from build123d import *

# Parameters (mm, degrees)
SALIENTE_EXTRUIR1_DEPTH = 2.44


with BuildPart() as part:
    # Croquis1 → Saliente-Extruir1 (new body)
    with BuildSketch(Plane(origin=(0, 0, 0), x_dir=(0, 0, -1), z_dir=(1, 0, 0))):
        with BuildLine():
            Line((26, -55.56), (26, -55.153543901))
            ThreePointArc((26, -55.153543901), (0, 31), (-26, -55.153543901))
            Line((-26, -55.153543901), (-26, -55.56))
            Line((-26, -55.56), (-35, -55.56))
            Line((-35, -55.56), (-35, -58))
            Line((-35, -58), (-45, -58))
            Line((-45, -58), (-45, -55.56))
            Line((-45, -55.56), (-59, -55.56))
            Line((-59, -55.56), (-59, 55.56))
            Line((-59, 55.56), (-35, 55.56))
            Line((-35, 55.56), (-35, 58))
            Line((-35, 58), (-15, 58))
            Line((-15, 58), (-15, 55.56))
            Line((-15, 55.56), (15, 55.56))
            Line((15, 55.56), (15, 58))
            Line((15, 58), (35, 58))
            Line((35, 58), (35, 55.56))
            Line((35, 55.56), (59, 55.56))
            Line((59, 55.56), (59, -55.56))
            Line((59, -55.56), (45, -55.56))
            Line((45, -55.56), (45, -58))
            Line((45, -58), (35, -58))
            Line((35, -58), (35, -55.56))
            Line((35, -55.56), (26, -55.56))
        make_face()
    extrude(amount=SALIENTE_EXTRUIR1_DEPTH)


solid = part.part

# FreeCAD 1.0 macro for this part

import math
import FreeCAD as App
import Part
import Sketcher
from FreeCAD import Vector

doc = App.newDocument("Part")
body = doc.addObject("PartDesign::Body", "Body")

# Sketch on YZ plane
sketch1 = doc.addObject("Sketcher::SketchObject", "Sketch")
body.addObject(sketch1)
sketch1.AttachmentSupport = (doc.YZ_Plane, [""])
sketch1.MapMode = "FlatFace"
sketch1.addGeometry([
    Part.LineSegment(Vector(-55.153544, -26, 0), Vector(-55.56, -26, 0)),  # 0
    Part.LineSegment(Vector(-55.56, -26, 0), Vector(-55.56, -35, 0)),  # 1
    Part.LineSegment(Vector(-55.56, -35, 0), Vector(-58, -35, 0)),  # 2
    Part.LineSegment(Vector(-58, -35, 0), Vector(-58, -45, 0)),  # 3
    Part.LineSegment(Vector(-58, -45, 0), Vector(-55.56, -45, 0)),  # 4
    Part.LineSegment(Vector(-55.56, -45, 0), Vector(-55.56, -59, 0)),  # 5
    Part.LineSegment(Vector(-55.56, -59, 0), Vector(55.56, -59, 0)),  # 6
    Part.LineSegment(Vector(55.56, -59, 0), Vector(55.56, -35, 0)),  # 7
    Part.LineSegment(Vector(55.56, -35, 0), Vector(58, -35, 0)),  # 8
    Part.LineSegment(Vector(58, -35, 0), Vector(58, -15, 0)),  # 9
    Part.LineSegment(Vector(58, -15, 0), Vector(55.56, -15, 0)),  # 10
    Part.LineSegment(Vector(55.56, -15, 0), Vector(55.56, 15, 0)),  # 11
    Part.LineSegment(Vector(55.56, 15, 0), Vector(58, 15, 0)),  # 12
    Part.LineSegment(Vector(58, 15, 0), Vector(58, 35, 0)),  # 13
    Part.LineSegment(Vector(58, 35, 0), Vector(55.56, 35, 0)),  # 14
    Part.LineSegment(Vector(55.56, 35, 0), Vector(55.56, 59, 0)),  # 15
    Part.LineSegment(Vector(55.56, 59, 0), Vector(-55.56, 59, 0)),  # 16
    Part.LineSegment(Vector(-55.56, 59, 0), Vector(-55.56, 45, 0)),  # 17
    Part.LineSegment(Vector(-55.56, 45, 0), Vector(-58, 45, 0)),  # 18
    Part.LineSegment(Vector(-58, 45, 0), Vector(-58, 35, 0)),  # 19
    Part.LineSegment(Vector(-58, 35, 0), Vector(-55.56, 35, 0)),  # 20
    Part.LineSegment(Vector(-55.56, 35, 0), Vector(-55.56, 26, 0)),  # 21
    Part.LineSegment(Vector(-55.56, 26, 0), Vector(-55.153544, 26, 0)),  # 22
    Part.ArcOfCircle(Part.Circle(Vector(-16, 0, 0), Vector(0, 0, 1), 47), math.radians(-146.413761), math.radians(146.413761)),  # 23
], False)
sketch1.addConstraint([
    Sketcher.Constraint("Coincident", 0, 2, 1, 1),
    Sketcher.Constraint("Coincident", 1, 2, 2, 1),
    Sketcher.Constraint("Coincident", 2, 2, 3, 1),
    Sketcher.Constraint("Coincident", 3, 2, 4, 1),
    Sketcher.Constraint("Coincident", 4, 2, 5, 1),
    Sketcher.Constraint("Coincident", 5, 2, 6, 1),
    Sketcher.Constraint("Coincident", 6, 2, 7, 1),
    Sketcher.Constraint("Coincident", 7, 2, 8, 1),
    Sketcher.Constraint("Coincident", 8, 2, 9, 1),
    Sketcher.Constraint("Coincident", 9, 2, 10, 1),
    Sketcher.Constraint("Coincident", 10, 2, 11, 1),
    Sketcher.Constraint("Coincident", 11, 2, 12, 1),
    Sketcher.Constraint("Coincident", 12, 2, 13, 1),
    Sketcher.Constraint("Coincident", 13, 2, 14, 1),
    Sketcher.Constraint("Coincident", 14, 2, 15, 1),
    Sketcher.Constraint("Coincident", 15, 2, 16, 1),
    Sketcher.Constraint("Coincident", 16, 2, 17, 1),
    Sketcher.Constraint("Coincident", 17, 2, 18, 1),
    Sketcher.Constraint("Coincident", 18, 2, 19, 1),
    Sketcher.Constraint("Coincident", 19, 2, 20, 1),
    Sketcher.Constraint("Coincident", 20, 2, 21, 1),
    Sketcher.Constraint("Coincident", 21, 2, 22, 1),
    Sketcher.Constraint("Coincident", 22, 2, 23, 2),
    Sketcher.Constraint("Coincident", 23, 1, 0, 1),
    Sketcher.Constraint("Horizontal", 0),
    Sketcher.Constraint("Vertical", 1),
    Sketcher.Constraint("Horizontal", 2),
    Sketcher.Constraint("Vertical", 3),
    Sketcher.Constraint("Horizontal", 4),
    Sketcher.Constraint("Vertical", 5),
    Sketcher.Constraint("Horizontal", 6),
    Sketcher.Constraint("Vertical", 7),
    Sketcher.Constraint("Horizontal", 8),
    Sketcher.Constraint("Vertical", 9),
    Sketcher.Constraint("Horizontal", 10),
    Sketcher.Constraint("Vertical", 11),
    Sketcher.Constraint("Horizontal", 12),
    Sketcher.Constraint("Vertical", 13),
    Sketcher.Constraint("Horizontal", 14),
    Sketcher.Constraint("Vertical", 15),
    Sketcher.Constraint("Horizontal", 16),
    Sketcher.Constraint("Vertical", 17),
    Sketcher.Constraint("Horizontal", 18),
    Sketcher.Constraint("Vertical", 19),
    Sketcher.Constraint("Horizontal", 20),
    Sketcher.Constraint("Vertical", 21),
    Sketcher.Constraint("Horizontal", 22),
    Sketcher.Constraint("Symmetric", 2, 2, 13, 2, -1, 1),
    Sketcher.Constraint("Symmetric", 5, 2, 15, 2, -1, 1),
    Sketcher.Constraint("Symmetric", 8, 2, 19, 2, -1, 1),
    Sketcher.Constraint("Symmetric", 1, 2, 7, 2, -2),
    Sketcher.Constraint("Symmetric", 9, 2, 12, 2, -1),
    Sketcher.Constraint("Symmetric", 4, 2, 17, 2, -1),
    Sketcher.Constraint("Symmetric", 0, 2, 21, 2, -1),
    Sketcher.Constraint("PointOnObject", 23, 3, -1),
    Sketcher.Constraint("Vertical", 1, 2, 4, 2),
    Sketcher.Constraint("Vertical", 7, 2, 10, 2),
    Sketcher.Constraint("Radius", 23, 47.0),
    Sketcher.Constraint("DistanceY", 1, 2, 1, 1, 9.0),
    Sketcher.Constraint("DistanceY", 3, 2, 3, 1, 10.0),
    Sketcher.Constraint("DistanceY", 5, 2, 5, 1, 14.0),
    Sketcher.Constraint("DistanceY", 9, 1, 9, 2, 20.0),
    Sketcher.Constraint("DistanceY", 11, 1, 11, 2, 30.0),
    Sketcher.Constraint("DistanceX", 23, 3, -1, 1, 16.0),
    Sketcher.Constraint("DistanceX", 2, 2, -1, 1, 58.0),
    Sketcher.Constraint("DistanceX", 2, 2, 2, 1, 2.44),
])
pad1 = doc.addObject("PartDesign::Pad", "Pad")
body.addObject(pad1)
pad1.Profile = sketch1
pad1.Length = 2.44

doc.recompute()
